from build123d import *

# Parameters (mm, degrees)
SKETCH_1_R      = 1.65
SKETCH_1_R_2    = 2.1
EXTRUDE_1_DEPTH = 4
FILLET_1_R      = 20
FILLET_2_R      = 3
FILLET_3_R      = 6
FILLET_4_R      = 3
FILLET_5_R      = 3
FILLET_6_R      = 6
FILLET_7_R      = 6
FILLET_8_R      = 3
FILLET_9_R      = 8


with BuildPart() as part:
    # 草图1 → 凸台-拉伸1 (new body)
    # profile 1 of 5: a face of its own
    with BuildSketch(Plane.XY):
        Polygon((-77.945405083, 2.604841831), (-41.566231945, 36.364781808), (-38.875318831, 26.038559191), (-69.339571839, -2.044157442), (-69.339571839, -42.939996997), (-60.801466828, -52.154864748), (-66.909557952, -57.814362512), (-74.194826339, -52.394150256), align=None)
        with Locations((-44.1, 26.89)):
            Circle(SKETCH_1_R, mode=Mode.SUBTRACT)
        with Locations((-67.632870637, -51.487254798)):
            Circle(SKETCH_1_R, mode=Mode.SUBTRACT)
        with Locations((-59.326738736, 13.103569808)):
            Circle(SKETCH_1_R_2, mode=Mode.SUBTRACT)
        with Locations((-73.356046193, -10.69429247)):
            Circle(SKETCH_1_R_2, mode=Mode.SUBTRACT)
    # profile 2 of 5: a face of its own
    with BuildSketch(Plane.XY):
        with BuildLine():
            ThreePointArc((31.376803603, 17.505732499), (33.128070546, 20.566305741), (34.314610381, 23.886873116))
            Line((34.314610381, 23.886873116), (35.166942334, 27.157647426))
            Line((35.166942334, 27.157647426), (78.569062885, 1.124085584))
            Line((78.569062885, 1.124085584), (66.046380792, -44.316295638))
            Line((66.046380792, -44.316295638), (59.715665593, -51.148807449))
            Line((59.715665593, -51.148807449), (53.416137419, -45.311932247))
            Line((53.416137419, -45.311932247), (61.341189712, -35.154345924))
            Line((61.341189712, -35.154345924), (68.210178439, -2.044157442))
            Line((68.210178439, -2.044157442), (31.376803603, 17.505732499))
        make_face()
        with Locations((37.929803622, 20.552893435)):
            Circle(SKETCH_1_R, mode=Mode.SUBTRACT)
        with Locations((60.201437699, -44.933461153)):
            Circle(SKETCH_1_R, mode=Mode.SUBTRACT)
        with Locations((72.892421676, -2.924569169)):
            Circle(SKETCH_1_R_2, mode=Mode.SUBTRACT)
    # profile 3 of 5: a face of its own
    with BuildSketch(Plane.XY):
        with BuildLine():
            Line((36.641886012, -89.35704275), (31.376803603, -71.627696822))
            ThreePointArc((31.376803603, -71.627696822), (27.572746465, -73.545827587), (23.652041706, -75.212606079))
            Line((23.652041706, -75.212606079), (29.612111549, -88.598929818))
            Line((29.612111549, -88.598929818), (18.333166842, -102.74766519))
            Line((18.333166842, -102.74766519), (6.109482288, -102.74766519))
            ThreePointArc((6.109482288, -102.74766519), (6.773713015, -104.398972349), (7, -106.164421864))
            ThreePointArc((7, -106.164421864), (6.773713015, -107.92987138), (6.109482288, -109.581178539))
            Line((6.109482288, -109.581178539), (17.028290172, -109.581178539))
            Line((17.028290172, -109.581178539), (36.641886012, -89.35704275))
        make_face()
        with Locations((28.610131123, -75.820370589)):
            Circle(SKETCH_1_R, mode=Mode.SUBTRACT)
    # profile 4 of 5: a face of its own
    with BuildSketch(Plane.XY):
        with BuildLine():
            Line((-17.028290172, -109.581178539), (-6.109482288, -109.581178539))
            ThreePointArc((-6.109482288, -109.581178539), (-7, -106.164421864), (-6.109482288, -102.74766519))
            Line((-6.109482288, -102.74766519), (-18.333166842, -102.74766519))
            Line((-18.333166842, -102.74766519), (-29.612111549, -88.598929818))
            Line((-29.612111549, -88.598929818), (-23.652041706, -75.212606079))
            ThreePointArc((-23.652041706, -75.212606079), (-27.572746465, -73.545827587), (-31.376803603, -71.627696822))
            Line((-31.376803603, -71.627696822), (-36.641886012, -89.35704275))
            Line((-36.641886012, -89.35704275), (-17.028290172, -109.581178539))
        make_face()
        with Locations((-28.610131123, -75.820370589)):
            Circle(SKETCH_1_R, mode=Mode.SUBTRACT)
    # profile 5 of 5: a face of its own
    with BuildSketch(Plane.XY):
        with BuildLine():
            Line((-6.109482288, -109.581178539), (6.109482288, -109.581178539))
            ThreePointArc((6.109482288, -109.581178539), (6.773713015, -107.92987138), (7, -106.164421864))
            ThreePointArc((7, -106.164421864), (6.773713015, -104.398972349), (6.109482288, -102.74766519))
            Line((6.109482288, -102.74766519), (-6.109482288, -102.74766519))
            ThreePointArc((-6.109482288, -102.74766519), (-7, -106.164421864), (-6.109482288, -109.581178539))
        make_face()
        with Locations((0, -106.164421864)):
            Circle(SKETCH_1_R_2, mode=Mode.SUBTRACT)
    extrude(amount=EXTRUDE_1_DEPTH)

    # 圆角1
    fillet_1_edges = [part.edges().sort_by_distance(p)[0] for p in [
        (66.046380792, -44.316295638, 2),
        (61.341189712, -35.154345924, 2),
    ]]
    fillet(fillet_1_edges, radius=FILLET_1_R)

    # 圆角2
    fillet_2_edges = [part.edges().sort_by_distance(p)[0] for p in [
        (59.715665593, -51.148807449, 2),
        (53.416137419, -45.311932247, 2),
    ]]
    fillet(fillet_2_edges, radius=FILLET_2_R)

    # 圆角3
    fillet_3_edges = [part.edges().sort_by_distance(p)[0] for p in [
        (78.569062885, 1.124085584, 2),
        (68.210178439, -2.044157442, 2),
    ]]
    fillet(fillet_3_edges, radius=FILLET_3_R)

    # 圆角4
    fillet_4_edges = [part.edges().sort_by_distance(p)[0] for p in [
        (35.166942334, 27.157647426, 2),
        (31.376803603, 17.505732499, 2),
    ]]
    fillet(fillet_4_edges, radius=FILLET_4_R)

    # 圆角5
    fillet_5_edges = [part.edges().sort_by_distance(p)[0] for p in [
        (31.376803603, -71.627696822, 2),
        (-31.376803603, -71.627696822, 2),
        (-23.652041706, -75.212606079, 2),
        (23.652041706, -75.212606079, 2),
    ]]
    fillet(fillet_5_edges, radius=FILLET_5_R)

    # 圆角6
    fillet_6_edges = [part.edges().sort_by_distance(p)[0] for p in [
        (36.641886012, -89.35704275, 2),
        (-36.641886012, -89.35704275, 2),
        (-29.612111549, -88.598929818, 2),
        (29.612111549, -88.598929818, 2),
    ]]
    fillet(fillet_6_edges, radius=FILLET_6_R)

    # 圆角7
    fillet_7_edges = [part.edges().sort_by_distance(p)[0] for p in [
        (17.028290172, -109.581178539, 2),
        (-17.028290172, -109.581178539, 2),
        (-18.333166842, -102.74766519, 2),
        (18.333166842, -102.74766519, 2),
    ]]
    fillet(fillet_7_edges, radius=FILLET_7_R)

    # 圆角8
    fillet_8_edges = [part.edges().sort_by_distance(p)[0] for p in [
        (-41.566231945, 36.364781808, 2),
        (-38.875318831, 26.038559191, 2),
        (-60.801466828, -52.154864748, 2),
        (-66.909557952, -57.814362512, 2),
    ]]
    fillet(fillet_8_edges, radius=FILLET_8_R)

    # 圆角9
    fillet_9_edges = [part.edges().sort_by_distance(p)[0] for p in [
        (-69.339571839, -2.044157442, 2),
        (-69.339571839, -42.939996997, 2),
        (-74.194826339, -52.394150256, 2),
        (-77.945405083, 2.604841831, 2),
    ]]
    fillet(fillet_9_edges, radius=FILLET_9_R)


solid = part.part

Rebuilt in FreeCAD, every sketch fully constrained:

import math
import FreeCAD as App
import Part
import Sketcher

V = App.Vector


def edges_at(feature, points):
    """Names of the edges that pass closest to the given points."""
    edges = feature.Shape.Edges
    near = lambda p: min(range(len(edges)), key=lambda i: edges[i].distToShape(Part.Vertex(*p))[0])
    return sorted({f"Edge{near(p) + 1}" for p in points})


def add_polygon(sketch, points):
    """Adds a closed chain of lines whose ends are joined by coincident constraints."""
    first, n = sketch.GeometryCount, len(points)
    for a, b in zip(points, points[1:] + points[:1]):
        sketch.addGeometry(Part.LineSegment(App.Vector(*a, 0), App.Vector(*b, 0)), False)
    for i in range(n):
        sketch.addConstraint(Sketcher.Constraint("Coincident", first + i, 2, first + (i + 1) % n, 1))

doc = App.newDocument("Part")
body = doc.addObject("PartDesign::Body", "Body")
body.AllowCompound = True

# Sketch on XY plane
sketch1 = body.newObject("Sketcher::SketchObject", "Sketch")
sketch1.AttachmentSupport = (doc.getObject("XY_Plane"), [""])
sketch1.MapMode = "FlatFace"
add_polygon(sketch1, [(-41.566232, 36.364782), (-77.945405, 2.604842), (-74.194826, -52.39415), (-66.909558, -57.814363), (-60.801467, -52.154865), (-69.339572, -42.939997), (-69.339572, -2.044157), (-38.875319, 26.038559)])  # lines 0-7
sketch1.addGeometry(Part.Circle(V(-67.632871, -51.487255, 0), V(0, 0, 1), 1.65), False)  # 8
sketch1.addGeometry(Part.Circle(V(-44.1, 26.89, 0), V(0, 0, 1), 1.65), False)  # 9
sketch1.addGeometry(Part.Circle(V(-73.356046, -10.694292, 0), V(0, 0, 1), 2.1), False)  # 10
sketch1.addGeometry(Part.Circle(V(-59.326739, 13.10357, 0), V(0, 0, 1), 2.1), False)  # 11
sketch1.addGeometry(Part.ArcOfCircle(Part.Circle(V(14.960945, 28.93025, 0), V(0, 0, 1), 20), math.radians(-34.835754), math.radians(-14.60589)), False)  # 12
sketch1.addGeometry(Part.LineSegment(V(31.376804, 17.505732, 0), V(68.210178, -2.044157, 0)), False)  # 13
sketch1.addGeometry(Part.LineSegment(V(68.210178, -2.044157, 0), V(61.34119, -35.154346, 0)), False)  # 14
sketch1.addGeometry(Part.LineSegment(V(61.34119, -35.154346, 0), V(53.416137, -45.311932, 0)), False)  # 15
sketch1.addGeometry(Part.LineSegment(V(53.416137, -45.311932, 0), V(59.715666, -51.148807, 0)), False)  # 16
sketch1.addGeometry(Part.LineSegment(V(59.715666, -51.148807, 0), V(66.046381, -44.316296, 0)), False)  # 17
sketch1.addGeometry(Part.LineSegment(V(66.046381, -44.316296, 0), V(78.569063, 1.124086, 0)), False)  # 18
sketch1.addGeometry(Part.LineSegment(V(78.569063, 1.124086, 0), V(35.166942, 27.157647, 0)), False)  # 19
sketch1.addGeometry(Part.LineSegment(V(35.166942, 27.157647, 0), V(34.31461, 23.886873, 0)), False)  # 20
sketch1.addGeometry(Part.Circle(V(60.201438, -44.933461, 0), V(0, 0, 1), 1.65), False)  # 21
sketch1.addGeometry(Part.Circle(V(72.892422, -2.924569, 0), V(0, 0, 1), 2.1), False)  # 22
sketch1.addGeometry(Part.Circle(V(37.929804, 20.552893, 0), V(0, 0, 1), 1.65), False)  # 23
sketch1.addGeometry(Part.LineSegment(V(36.641886, -89.357043, 0), V(31.376804, -71.627697, 0)), False)  # 24
sketch1.addGeometry(Part.ArcOfCircle(Part.Circle(V(0, -14.132078, 0), V(0, 0, 1), 65.5), math.radians(-68.832242), math.radians(-61.377594)), False)  # 25
sketch1.addGeometry(Part.LineSegment(V(23.652042, -75.212606, 0), V(29.612112, -88.59893, 0)), False)  # 26
sketch1.addGeometry(Part.LineSegment(V(29.612112, -88.59893, 0), V(18.333167, -102.747665, 0)), False)  # 27
sketch1.addGeometry(Part.LineSegment(V(18.333167, -102.747665, 0), V(-18.333167, -102.747665, 0)), False)  # 28
sketch1.addGeometry(Part.LineSegment(V(-18.333167, -102.747665, 0), V(-29.612112, -88.59893, 0)), False)  # 29
sketch1.addGeometry(Part.LineSegment(V(-29.612112, -88.59893, 0), V(-23.652042, -75.212606, 0)), False)  # 30
sketch1.addGeometry(Part.ArcOfCircle(Part.Circle(V(0, -14.132078, 0), V(0, 0, 1), 65.5), math.radians(-118.622406), math.radians(-111.167758)), False)  # 31
sketch1.addGeometry(Part.LineSegment(V(-31.376804, -71.627697, 0), V(-36.641886, -89.357043, 0)), False)  # 32
sketch1.addGeometry(Part.LineSegment(V(-36.641886, -89.357043, 0), V(-17.02829, -109.581179, 0)), False)  # 33
sketch1.addGeometry(Part.LineSegment(V(-17.02829, -109.581179, 0), V(17.02829, -109.581179, 0)), False)  # 34
sketch1.addGeometry(Part.LineSegment(V(17.02829, -109.581179, 0), V(36.641886, -89.357043, 0)), False)  # 35
sketch1.addGeometry(Part.Circle(V(28.610131, -75.820371, 0), V(0, 0, 1), 1.65), False)  # 36
sketch1.addGeometry(Part.Circle(V(0, -106.164422, 0), V(0, 0, 1), 2.1), False)  # 37
sketch1.addGeometry(Part.Circle(V(-28.610131, -75.820371, 0), V(0, 0, 1), 1.65), False)  # 38
sketch1.addConstraint(Sketcher.Constraint("Coincident", 12, 1, 13, 1))
sketch1.addConstraint(Sketcher.Constraint("Coincident", 13, 2, 14, 1))
sketch1.addConstraint(Sketcher.Constraint("Coincident", 14, 2, 15, 1))
sketch1.addConstraint(Sketcher.Constraint("Coincident", 15, 2, 16, 1))
sketch1.addConstraint(Sketcher.Constraint("Coincident", 16, 2, 17, 1))
sketch1.addConstraint(Sketcher.Constraint("Coincident", 17, 2, 18, 1))
sketch1.addConstraint(Sketcher.Constraint("Coincident", 18, 2, 19, 1))
sketch1.addConstraint(Sketcher.Constraint("Coincident", 19, 2, 20, 1))
sketch1.addConstraint(Sketcher.Constraint("Coincident", 20, 2, 12, 2))
sketch1.addConstraint(Sketcher.Constraint("Coincident", 24, 2, 25, 2))
sketch1.addConstraint(Sketcher.Constraint("Coincident", 25, 1, 26, 1))
sketch1.addConstraint(Sketcher.Constraint("Coincident", 26, 2, 27, 1))
sketch1.addConstraint(Sketcher.Constraint("Coincident", 27, 2, 28, 1))
sketch1.addConstraint(Sketcher.Constraint("Coincident", 28, 2, 29, 1))
sketch1.addConstraint(Sketcher.Constraint("Coincident", 29, 2, 30, 1))
sketch1.addConstraint(Sketcher.Constraint("Coincident", 30, 2, 31, 2))
sketch1.addConstraint(Sketcher.Constraint("Coincident", 31, 1, 32, 1))
sketch1.addConstraint(Sketcher.Constraint("Coincident", 32, 2, 33, 1))
sketch1.addConstraint(Sketcher.Constraint("Coincident", 33, 2, 34, 1))
sketch1.addConstraint(Sketcher.Constraint("Coincident", 34, 2, 35, 1))
sketch1.addConstraint(Sketcher.Constraint("Coincident", 35, 2, 24, 1))
sketch1.addConstraint(Sketcher.Constraint("Vertical", 5))
sketch1.addConstraint(Sketcher.Constraint("Horizontal", 28))
sketch1.addConstraint(Sketcher.Constraint("Horizontal", 34))
sketch1.addConstraint(Sketcher.Constraint("Coincident", 31, 3, 25, 3))
sketch1.addConstraint(Sketcher.Constraint("PointOnObject", 25, 3, -2))
sketch1.addConstraint(Sketcher.Constraint("PointOnObject", 37, 3, -2))
sketch1.addConstraint(Sketcher.Constraint("Radius", 12, 20.0))
sketch1.addConstraint(Sketcher.Constraint("Diameter", 8, 3.3))
sketch1.addConstraint(Sketcher.Constraint("Diameter", 9, 3.3))
sketch1.addConstraint(Sketcher.Constraint("Diameter", 10, 4.2))
sketch1.addConstraint(Sketcher.Constraint("Diameter", 11, 4.2))
sketch1.addConstraint(Sketcher.Constraint("Diameter", 21, 3.3))
sketch1.addConstraint(Sketcher.Constraint("Diameter", 22, 4.2))
sketch1.addConstraint(Sketcher.Constraint("Diameter", 23, 3.3))
sketch1.addConstraint(Sketcher.Constraint("Diameter", 36, 3.3))
sketch1.addConstraint(Sketcher.Constraint("Diameter", 37, 4.2))
sketch1.addConstraint(Sketcher.Constraint("Diameter", 38, 3.3))
sketch1.addConstraint(Sketcher.Constraint("Radius", 25, 65.5))
sketch1.addConstraint(Sketcher.Constraint("Radius", 31, 65.5))
sketch1.addConstraint(Sketcher.Constraint("DistanceX", 9, 3, -1, 1, 44.1))
sketch1.addConstraint(Sketcher.Constraint("DistanceY", -1, 1, 9, 3, 26.89))
sketch1.addConstraint(Sketcher.Constraint("DistanceY", 5, 2, 0, 2, 4.648999))
sketch1.addConstraint(Sketcher.Constraint("DistanceX", 12, 1, 23, 3, 6.553))
sketch1.addConstraint(Sketcher.Constraint("DistanceX", 34, 1, 34, 2, 34.05658))
sketch1.addConstraint(Sketcher.Constraint("DistanceY", 5, 1, 5, 2, 40.89584))
sketch1.addConstraint(Sketcher.Constraint("DistanceY", 36, 3, 22, 3, 72.895801))
sketch1.addConstraint(Sketcher.Constraint("DistanceX", 4, 2, 8, 3, 1.706701))
sketch1.addConstraint(Sketcher.Constraint("DistanceY", 22, 3, 12, 1, 20.430302))
sketch1.addConstraint(Sketcher.Constraint("DistanceX", 15, 2, 21, 3, 6.7853))
sketch1.addConstraint(Sketcher.Constraint("DistanceY", 24, 2, 17, 2, 27.311401))
sketch1.addConstraint(Sketcher.Constraint("DistanceY", 25, 1, 16, 2, 24.063799))
sketch1.addConstraint(Sketcher.Constraint("Distance", 0, 49.630412))
sketch1.addConstraint(Sketcher.Constraint("Distance", 2, 9.080409))
sketch1.addConstraint(Sketcher.Constraint("Distance", 13, 41.700068))
sketch1.addConstraint(Sketcher.Constraint("Distance", 15, 12.88344))
sketch1.addConstraint(Sketcher.Constraint("Distance", 19, 50.611169))
sketch1.addConstraint(Sketcher.Constraint("Distance", 33, 28.172838))
sketch1.addConstraint(Sketcher.Constraint("Distance", 35, 28.172838))
sketch1.addConstraint(Sketcher.Constraint("DistanceX", 28, 2, 28, 1, 36.666334))
sketch1.addConstraint(Sketcher.Constraint("DistanceX", 8, 3, -1, 1, 67.632871))
sketch1.addConstraint(Sketcher.Constraint("DistanceX", 11, 3, -1, 1, 59.326739))
sketch1.addConstraint(Sketcher.Constraint("DistanceY", -1, 1, 11, 3, 13.10357))
sketch1.addConstraint(Sketcher.Constraint("DistanceY", -1, 1, 12, 3, 28.93025))
sketch1.addConstraint(Sketcher.Constraint("DistanceY", 21, 3, -1, 1, 44.933461))
sketch1.addConstraint(Sketcher.Constraint("DistanceX", -1, 1, 22, 3, 72.892422))
sketch1.addConstraint(Sketcher.Constraint("DistanceY", 22, 3, -1, 1, 2.924569))
sketch1.addConstraint(Sketcher.Constraint("DistanceX", -1, 1, 36, 3, 28.610131))
sketch1.addConstraint(Sketcher.Constraint("DistanceY", 37, 3, -1, 1, 106.164422))
sketch1.addConstraint(Sketcher.Constraint("DistanceX", 38, 3, -1, 1, 28.610131))
sketch1.addConstraint(Sketcher.Constraint("DistanceY", 38, 3, -1, 1, 75.820371))
sketch1.addConstraint(Sketcher.Constraint("DistanceY", -1, 1, 0, 2, 2.604842))
sketch1.addConstraint(Sketcher.Constraint("DistanceY", 1, 2, -1, 1, 52.39415))
sketch1.addConstraint(Sketcher.Constraint("DistanceX", 6, 2, -1, 1, 38.875319))
sketch1.addConstraint(Sketcher.Constraint("DistanceY", -1, 1, 6, 2, 26.038559))
sketch1.addConstraint(Sketcher.Constraint("DistanceX", 7, 2, -1, 1, 41.566232))
sketch1.addConstraint(Sketcher.Constraint("DistanceY", -1, 1, 7, 2, 36.364782))
sketch1.addConstraint(Sketcher.Constraint("DistanceX", -1, 1, 13, 2, 68.210178))
sketch1.addConstraint(Sketcher.Constraint("DistanceX", -1, 1, 14, 2, 61.34119))
sketch1.addConstraint(Sketcher.Constraint("DistanceX", -1, 1, 17, 2, 66.046381))
sketch1.addConstraint(Sketcher.Constraint("DistanceX", -1, 1, 20, 2, 34.31461))
sketch1.addConstraint(Sketcher.Constraint("DistanceX", -1, 1, 25, 1, 23.652042))
sketch1.addConstraint(Sketcher.Constraint("DistanceX", -1, 1, 26, 2, 29.612112))
sketch1.addConstraint(Sketcher.Constraint("DistanceY", 26, 2, -1, 1, 88.59893))
sketch1.addConstraint(Sketcher.Constraint("DistanceX", 29, 2, -1, 1, 29.612112))
sketch1.addConstraint(Sketcher.Constraint("DistanceY", 29, 2, -1, 1, 88.59893))
sketch1.addConstraint(Sketcher.Constraint("DistanceX", 30, 2, -1, 1, 23.652042))
sketch1.addConstraint(Sketcher.Constraint("DistanceX", 33, 2, -1, 1, 17.02829))
sketch1.addConstraint(Sketcher.Constraint("DistanceY", 33, 2, -1, 1, 109.581179))
sketch1.addConstraint(Sketcher.Constraint("DistanceX", 10, 3, 12, 3, 88.316992))
sketch1.addConstraint(Sketcher.Constraint("DistanceX", 8, 3, 21, 3, 127.834308))
sketch1.addConstraint(Sketcher.Constraint("DistanceY", 21, 3, 10, 3, 34.239169))
sketch1.addConstraint(Sketcher.Constraint("DistanceX", 23, 3, 22, 3, 34.962618))
sketch1.addConstraint(Sketcher.Constraint("DistanceY", 25, 3, 23, 3, 34.684971))
sketch1.addConstraint(Sketcher.Constraint("DistanceY", 25, 3, 0, 2, 16.73692))
sketch1.addConstraint(Sketcher.Constraint("DistanceX", 1, 2, 10, 3, 0.83878))
sketch1.addConstraint(Sketcher.Constraint("DistanceX", 1, 2, 2, 2, 7.285268))
sketch1.addConstraint(Sketcher.Constraint("DistanceY", 3, 2, 8, 3, 0.66761))
sketch1.addConstraint(Sketcher.Constraint("DistanceX", 2, 2, 3, 2, 6.108091))
sketch1.addConstraint(Sketcher.Constraint("DistanceY", 14, 2, 13, 2, 33.110188))
sketch1.addConstraint(Sketcher.Constraint("DistanceX", 15, 2, 16, 2, 6.299528))
sketch1.addConstraint(Sketcher.Constraint("DistanceY", 16, 2, 17, 2, 6.832512))
sketch1.addConstraint(Sketcher.Constraint("DistanceX", 22, 3, 18, 2, 5.676641))
sketch1.addConstraint(Sketcher.Constraint("DistanceY", 14, 2, 18, 2, 36.278432))
sketch1.addConstraint(Sketcher.Constraint("DistanceX", 19, 2, 23, 3, 2.762861))
sketch1.addConstraint(Sketcher.Constraint("DistanceY", 27, 2, 25, 1, 27.535059))
sketch1.addConstraint(Sketcher.Constraint("DistanceX", 28, 2, 26, 2, 47.945278))
sketch1.addConstraint(Sketcher.Constraint("DistanceY", 30, 2, 3, 2, 23.057741))
sketch1.addConstraint(Sketcher.Constraint("DistanceX", 31, 1, 30, 2, 7.724762))
sketch1.addConstraint(Sketcher.Constraint("DistanceX", 32, 2, 28, 2, 18.308719))
sketch1.addConstraint(Sketcher.Constraint("DistanceX", 27, 2, 35, 2, 18.308719))
pad1 = body.newObject("PartDesign::Pad", "Pad")
pad1.Profile = sketch1
pad1.Length = 4
doc.recompute()

fillet = body.newObject("PartDesign::Fillet", "Fillet")
fillet.Base = (pad1, edges_at(pad1, [(66.046, -44.316, 2), (61.341, -35.154, 2)]))
fillet.Radius = 20
doc.recompute()

fillet2 = body.newObject("PartDesign::Fillet", "Fillet001")
fillet2.Base = (fillet, edges_at(fillet, [(59.716, -51.149, 2), (53.416, -45.312, 2)]))
fillet2.Radius = 3
doc.recompute()

fillet3 = body.newObject("PartDesign::Fillet", "Fillet002")
fillet3.Base = (fillet2, edges_at(fillet2, [(78.569, 1.124, 2), (68.21, -2.044, 2)]))
fillet3.Radius = 6
doc.recompute()

fillet4 = body.newObject("PartDesign::Fillet", "Fillet003")
fillet4.Base = (fillet3, edges_at(fillet3, [(35.167, 27.158, 2), (31.377, 17.506, 2)]))
fillet4.Radius = 3
doc.recompute()

fillet5 = body.newObject("PartDesign::Fillet", "Fillet004")
fillet5.Base = (fillet4, edges_at(fillet4, [
    (31.377, -71.628, 2),
    (-31.377, -71.628, 2),
    (-23.652, -75.213, 2),
    (23.652, -75.213, 2),
]))
fillet5.Radius = 3
doc.recompute()

fillet6 = body.newObject("PartDesign::Fillet", "Fillet005")
fillet6.Base = (fillet5, edges_at(fillet5, [
    (36.642, -89.357, 2),
    (-36.642, -89.357, 2),
    (-29.612, -88.599, 2),
    (29.612, -88.599, 2),
]))
fillet6.Radius = 6
doc.recompute()

fillet7 = body.newObject("PartDesign::Fillet", "Fillet006")
fillet7.Base = (fillet6, edges_at(fillet6, [
    (17.028, -109.581, 2),
    (-17.028, -109.581, 2),
    (-18.333, -102.748, 2),
    (18.333, -102.748, 2),
]))
fillet7.Radius = 6
doc.recompute()

fillet8 = body.newObject("PartDesign::Fillet", "Fillet007")
fillet8.Base = (fillet7, edges_at(fillet7, [
    (-41.566, 36.365, 2),
    (-38.875, 26.039, 2),
    (-60.801, -52.155, 2),
    (-66.91, -57.814, 2),
]))
fillet8.Radius = 3
doc.recompute()

fillet9 = body.newObject("PartDesign::Fillet", "Fillet008")
fillet9.Base = (fillet8, edges_at(fillet8, [
    (-69.34, -2.044, 2),
    (-69.34, -42.94, 2),
    (-74.195, -52.394, 2),
    (-77.945, 2.605, 2),
]))
fillet9.Radius = 8

doc.recompute()
